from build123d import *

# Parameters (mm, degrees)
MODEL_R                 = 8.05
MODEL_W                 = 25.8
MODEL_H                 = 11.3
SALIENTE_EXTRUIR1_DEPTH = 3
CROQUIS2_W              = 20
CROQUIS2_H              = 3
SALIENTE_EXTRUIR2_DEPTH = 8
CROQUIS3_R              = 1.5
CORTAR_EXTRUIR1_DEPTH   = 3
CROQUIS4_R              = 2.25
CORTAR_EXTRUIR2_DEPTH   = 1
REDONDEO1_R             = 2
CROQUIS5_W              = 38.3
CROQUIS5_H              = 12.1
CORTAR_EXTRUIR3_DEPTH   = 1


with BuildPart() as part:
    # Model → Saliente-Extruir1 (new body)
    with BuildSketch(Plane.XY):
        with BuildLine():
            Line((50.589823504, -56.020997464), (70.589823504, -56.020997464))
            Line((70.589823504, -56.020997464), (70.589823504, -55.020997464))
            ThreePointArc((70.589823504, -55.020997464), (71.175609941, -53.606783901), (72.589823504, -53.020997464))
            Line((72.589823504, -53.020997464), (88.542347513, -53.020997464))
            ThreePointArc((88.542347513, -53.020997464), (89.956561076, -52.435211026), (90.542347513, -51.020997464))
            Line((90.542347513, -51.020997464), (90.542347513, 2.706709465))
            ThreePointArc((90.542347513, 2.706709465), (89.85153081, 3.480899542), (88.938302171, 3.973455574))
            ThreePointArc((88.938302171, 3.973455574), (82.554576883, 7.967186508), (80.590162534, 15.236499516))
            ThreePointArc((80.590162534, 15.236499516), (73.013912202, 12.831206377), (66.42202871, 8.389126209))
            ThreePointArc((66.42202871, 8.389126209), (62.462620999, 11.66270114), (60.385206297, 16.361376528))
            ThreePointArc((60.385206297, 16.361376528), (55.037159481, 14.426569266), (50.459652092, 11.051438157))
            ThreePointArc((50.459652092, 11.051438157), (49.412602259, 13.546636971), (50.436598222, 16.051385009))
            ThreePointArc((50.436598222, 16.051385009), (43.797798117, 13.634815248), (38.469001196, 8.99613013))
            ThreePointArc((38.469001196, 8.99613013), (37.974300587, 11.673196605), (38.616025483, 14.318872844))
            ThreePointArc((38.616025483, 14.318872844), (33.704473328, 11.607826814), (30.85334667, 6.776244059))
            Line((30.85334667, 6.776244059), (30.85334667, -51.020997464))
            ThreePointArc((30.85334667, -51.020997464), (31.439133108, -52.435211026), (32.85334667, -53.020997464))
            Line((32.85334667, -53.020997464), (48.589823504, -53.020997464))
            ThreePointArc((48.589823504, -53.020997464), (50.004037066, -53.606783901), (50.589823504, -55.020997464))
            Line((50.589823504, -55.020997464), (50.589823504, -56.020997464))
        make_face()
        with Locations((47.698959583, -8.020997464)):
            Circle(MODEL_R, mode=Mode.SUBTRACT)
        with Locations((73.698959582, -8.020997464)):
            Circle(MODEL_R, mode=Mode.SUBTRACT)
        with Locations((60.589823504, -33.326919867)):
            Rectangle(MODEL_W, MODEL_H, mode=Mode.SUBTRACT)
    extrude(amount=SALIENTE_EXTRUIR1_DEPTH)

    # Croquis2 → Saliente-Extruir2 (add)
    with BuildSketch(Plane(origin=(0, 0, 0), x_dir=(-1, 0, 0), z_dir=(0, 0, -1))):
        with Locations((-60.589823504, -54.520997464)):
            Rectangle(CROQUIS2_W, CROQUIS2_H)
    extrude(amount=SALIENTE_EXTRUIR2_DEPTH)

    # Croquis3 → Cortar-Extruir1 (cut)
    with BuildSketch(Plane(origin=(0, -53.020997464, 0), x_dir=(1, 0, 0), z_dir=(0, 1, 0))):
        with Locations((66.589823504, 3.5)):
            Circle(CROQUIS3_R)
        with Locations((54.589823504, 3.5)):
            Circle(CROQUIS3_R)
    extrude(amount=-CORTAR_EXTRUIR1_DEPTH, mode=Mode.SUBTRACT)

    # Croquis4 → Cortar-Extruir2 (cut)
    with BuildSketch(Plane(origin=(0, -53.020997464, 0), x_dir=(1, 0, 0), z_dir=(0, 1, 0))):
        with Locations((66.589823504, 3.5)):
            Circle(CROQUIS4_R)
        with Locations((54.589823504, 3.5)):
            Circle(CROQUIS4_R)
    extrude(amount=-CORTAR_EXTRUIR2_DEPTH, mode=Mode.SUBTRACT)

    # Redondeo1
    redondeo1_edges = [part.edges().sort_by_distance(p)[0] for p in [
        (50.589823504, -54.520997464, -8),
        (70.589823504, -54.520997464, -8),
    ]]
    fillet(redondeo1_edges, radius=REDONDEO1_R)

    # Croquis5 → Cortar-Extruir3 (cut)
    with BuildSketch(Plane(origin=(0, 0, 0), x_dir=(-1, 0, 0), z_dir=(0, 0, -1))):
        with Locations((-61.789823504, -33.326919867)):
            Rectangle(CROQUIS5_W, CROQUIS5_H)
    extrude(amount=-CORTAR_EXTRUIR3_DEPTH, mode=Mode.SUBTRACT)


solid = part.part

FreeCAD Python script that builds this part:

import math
import FreeCAD as App
import Part
import Sketcher

V = App.Vector


def edges_at(feature, points):
    """Names of the edges that pass closest to the given points."""
    edges = feature.Shape.Edges
    near = lambda p: min(range(len(edges)), key=lambda i: edges[i].distToShape(Part.Vertex(*p))[0])
    return sorted({f"Edge{near(p) + 1}" for p in points})


def add_polygon(sketch, points):
    """Adds a closed chain of lines whose ends are joined by coincident constraints."""
    first, n = sketch.GeometryCount, len(points)
    for a, b in zip(points, points[1:] + points[:1]):
        sketch.addGeometry(Part.LineSegment(App.Vector(*a, 0), App.Vector(*b, 0)), False)
    for i in range(n):
        sketch.addConstraint(Sketcher.Constraint("Coincident", first + i, 2, first + (i + 1) % n, 1))

doc = App.newDocument("Part")
body = doc.addObject("PartDesign::Body", "Body")

# Sketch on XY plane
sketch1 = body.newObject("Sketcher::SketchObject", "Sketch")
sketch1.AttachmentSupport = (doc.getObject("XY_Plane"), [""])
sketch1.MapMode = "FlatFace"
sketch1.addGeometry(Part.LineSegment(V(50.6, -56, 0), V(70.6, -56, 0)), False)  # 0
sketch1.addGeometry(Part.LineSegment(V(70.6, -56, 0), V(70.6, -55, 0)), False)  # 1
sketch1.addGeometry(Part.ArcOfCircle(Part.Circle(V(72.6, -55, 0), V(0, 0, 1), 2), math.radians(90), math.radians(180)), False)  # 2
sketch1.addGeometry(Part.LineSegment(V(72.6, -53, 0), V(88.5, -53, 0)), False)  # 3
sketch1.addGeometry(Part.ArcOfCircle(Part.Circle(V(88.5, -51, 0), V(0, 0, 1), 2), math.radians(-90), math.radians(0)), False)  # 4
sketch1.addGeometry(Part.LineSegment(V(90.5, -51, 0), V(90.5, 2.7, 0)), False)  # 5
sketch1.addGeometry(Part.ArcOfCircle(Part.Circle(V(88, 1.1, 0), V(0, 0, 1), 3), math.radians(32), math.radians(72)), False)  # 6
sketch1.addGeometry(Part.ArcOfCircle(Part.Circle(V(90.8, 14.1, 0), V(0, 0, 1), 10.3), math.radians(174), math.radians(259)), False)  # 7
sketch1.addGeometry(Part.ArcOfCircle(Part.Circle(V(85.2, -12.3, 0), V(0, 0, 1), 27.9), math.radians(99), math.radians(132)), False)  # 8
sketch1.addGeometry(Part.ArcOfCircle(Part.Circle(V(71.4, 18.4, 0), V(0, 0, 1), 11.2), math.radians(-169), math.radians(-116)), False)  # 9
sketch1.addGeometry(Part.ArcOfCircle(Part.Circle(V(64.4, -3, 0), V(0, 0, 1), 19.8), math.radians(102), math.radians(135)), False)  # 10
sketch1.addGeometry(Part.ArcOfCircle(Part.Circle(V(52.9, 13.6, 0), V(0, 0, 1), 3.5), math.radians(135), math.radians(225)), False)  # 11
sketch1.addGeometry(Part.ArcOfCircle(Part.Circle(V(53.6, -3, 0), V(0, 0, 1), 19.3), math.radians(99), math.radians(142)), False)  # 12
sketch1.addGeometry(Part.ArcOfCircle(Part.Circle(V(44.5, 11.5, 0), V(0, 0, 1), 6.5), math.radians(154), math.radians(203)), False)  # 13
sketch1.addGeometry(Part.ArcOfCircle(Part.Circle(V(41.1, 4, 0), V(0, 0, 1), 10.6), math.radians(104), math.radians(165)), False)  # 14
sketch1.addGeometry(Part.LineSegment(V(30.9, 6.8, 0), V(30.9, -51, 0)), False)  # 15
sketch1.addGeometry(Part.ArcOfCircle(Part.Circle(V(32.9, -51, 0), V(0, 0, 1), 2), math.radians(-180), math.radians(-90)), False)  # 16
sketch1.addGeometry(Part.LineSegment(V(32.9, -53, 0), V(48.6, -53, 0)), False)  # 17
sketch1.addGeometry(Part.ArcOfCircle(Part.Circle(V(48.6, -55, 0), V(0, 0, 1), 2), math.radians(0), math.radians(90)), False)  # 18
sketch1.addGeometry(Part.LineSegment(V(50.6, -55, 0), V(50.6, -56, 0)), False)  # 19
add_polygon(sketch1, [(73.5, -39), (47.7, -39), (47.7, -27.7), (73.5, -27.7)])  # lines 20-23
sketch1.addGeometry(Part.Circle(V(47.7, -8, 0), V(0, 0, 1), 8.1), False)  # 24
sketch1.addGeometry(Part.Circle(V(73.7, -8, 0), V(0, 0, 1), 8.1), False)  # 25
sketch1.addConstraint([
    Sketcher.Constraint("Coincident", 0, 2, 1, 1),
    Sketcher.Constraint("Tangent", 1, 2, 2, 2),
    Sketcher.Constraint("Tangent", 2, 1, 3, 1),
    Sketcher.Constraint("Tangent", 3, 2, 4, 1),
    Sketcher.Constraint("Tangent", 4, 2, 5, 1),
    Sketcher.Constraint("Coincident", 5, 2, 6, 1),
    Sketcher.Constraint("Coincident", 6, 2, 7, 2),
    Sketcher.Constraint("Coincident", 7, 1, 8, 1),
    Sketcher.Constraint("Coincident", 8, 2, 9, 2),
    Sketcher.Constraint("Coincident", 9, 1, 10, 1),
    Sketcher.Constraint("Coincident", 10, 2, 11, 2),
    Sketcher.Constraint("Coincident", 11, 1, 12, 1),
    Sketcher.Constraint("Coincident", 12, 2, 13, 2),
    Sketcher.Constraint("Coincident", 13, 1, 14, 1),
    Sketcher.Constraint("Coincident", 14, 2, 15, 1),
    Sketcher.Constraint("Tangent", 15, 2, 16, 1),
    Sketcher.Constraint("Tangent", 16, 2, 17, 1),
    Sketcher.Constraint("Tangent", 17, 2, 18, 2),
    Sketcher.Constraint("Tangent", 18, 1, 19, 1),
    Sketcher.Constraint("Coincident", 19, 2, 0, 1),
    Sketcher.Constraint("Horizontal", 0),
    Sketcher.Constraint("Vertical", 1),
    Sketcher.Constraint("Horizontal", 3),
    Sketcher.Constraint("Vertical", 5),
    Sketcher.Constraint("Vertical", 15),
    Sketcher.Constraint("Horizontal", 17),
    Sketcher.Constraint("Vertical", 19),
    Sketcher.Constraint("Horizontal", 20),
    Sketcher.Constraint("Vertical", 21),
    Sketcher.Constraint("Horizontal", 22),
    Sketcher.Constraint("Vertical", 23),
    Sketcher.Constraint("Equal", 2, 4),
    Sketcher.Constraint("Equal", 4, 16),
    Sketcher.Constraint("Equal", 16, 18),
    Sketcher.Constraint("Equal", 24, 25),
    Sketcher.Constraint("Horizontal", 4, 3, 16, 3),
    Sketcher.Constraint("Horizontal", 24, 3, 25, 3),
    Sketcher.Constraint("Horizontal", 14, 3, 6, 2),
    Sketcher.Constraint("Radius", 2, 2.0),
    Sketcher.Constraint("Radius", 6, 3.0),
    Sketcher.Constraint("Diameter", 24, 16.1),
    Sketcher.Constraint("DistanceX", 0, 1, 0, 2, 20.0),
    Sketcher.Constraint("DistanceY", 1, 1, 1, 2, 1.0),
    Sketcher.Constraint("DistanceX", 20, 2, 20, 1, 25.8),
    Sketcher.Constraint("DistanceY", 21, 1, 21, 2, 11.3),
    Sketcher.Constraint("DistanceX", 24, 3, 25, 3, 26.0),
    Sketcher.Constraint("DistanceX", 20, 2, 17, 2, 0.9),
    Sketcher.Constraint("Radius", 9, 11.18034),
    Sketcher.Constraint("Radius", 10, 19.801309),
    Sketcher.Constraint("DistanceX", -1, 1, 12, 2, 38.469001),
    Sketcher.Constraint("Radius", 7, 10.307764),
    Sketcher.Constraint("Radius", 8, 27.930966),
    Sketcher.Constraint("Radius", 11, 3.535534),
    Sketcher.Constraint("Radius", 12, 19.349935),
    Sketcher.Constraint("Radius", 13, 6.519202),
    Sketcher.Constraint("Radius", 14, 10.644704),
    Sketcher.Constraint("DistanceX", 16, 3, 4, 3, 55.689001),
    Sketcher.Constraint("DistanceY", 15, 2, 15, 1, 57.797242),
    Sketcher.Constraint("DistanceY", 8, 3, -1, 1, 12.316798),
    Sketcher.Constraint("DistanceX", -1, 1, 11, 3, 52.948099),
    Sketcher.Constraint("DistanceY", -1, 1, 7, 1, 15.2365),
    Sketcher.Constraint("DistanceX", -1, 1, 11, 1, 50.436598),
    Sketcher.Constraint("DistanceY", 4, 3, 8, 3, 38.704199),
    Sketcher.Constraint("DistanceX", 14, 3, 12, 3, 12.502199),
    Sketcher.Constraint("DistanceY", 8, 3, 25, 3, 4.295801),
    Sketcher.Constraint("DistanceY", 10, 2, 11, 3, 2.5115),
    Sketcher.Constraint("DistanceY", 21, 2, 12, 3, 24.642801),
    Sketcher.Constraint("DistanceX", 3, 1, 3, 2, 15.952524),
    Sketcher.Constraint("DistanceY", 5, 1, 5, 2, 53.727707),
    Sketcher.Constraint("DistanceX", -1, 1, 6, 3, 87.992241),
    Sketcher.Constraint("DistanceX", -1, 1, 8, 3, 85.167791),
    Sketcher.Constraint("DistanceX", -1, 1, 10, 3, 64.377751),
    Sketcher.Constraint("DistanceY", -1, 1, 11, 3, 13.562939),
    Sketcher.Constraint("DistanceX", -1, 1, 12, 3, 53.624631),
    Sketcher.Constraint("DistanceX", -1, 1, 24, 3, 47.69896),
    Sketcher.Constraint("DistanceX", -1, 1, 8, 2, 66.422029),
    Sketcher.Constraint("DistanceY", 4, 3, 6, 3, 52.14753),
    Sketcher.Constraint("DistanceY", 7, 3, 9, 3, 4.30698),
    Sketcher.Constraint("DistanceX", 13, 3, 11, 3, 8.457081),
])
pad1 = body.newObject("PartDesign::Pad", "Pad")
pad1.Profile = sketch1
pad1.Length = 3

# Sketch on XY plane
sketch2 = body.newObject("Sketcher::SketchObject", "Sketch001")
sketch2.AttachmentSupport = (doc.getObject("XY_Plane"), [""])
sketch2.MapMode = "FlatFace"
add_polygon(sketch2, [(70.6, -53), (70.6, -56), (50.6, -56), (50.6, -53)])  # lines 0-3
sketch2.addConstraint([
    Sketcher.Constraint("Vertical", 0),
    Sketcher.Constraint("Horizontal", 1),
    Sketcher.Constraint("Vertical", 2),
    Sketcher.Constraint("Horizontal", 3),
    Sketcher.Constraint("DistanceX", 1, 2, 1, 1, 20.0),
    Sketcher.Constraint("DistanceY", 0, 2, 0, 1, 3.0),
    Sketcher.Constraint("DistanceX", -1, 1, 0, 2, 70.589824),
    Sketcher.Constraint("DistanceY", 0, 2, -1, 1, 56.020997),
])
pad2 = body.newObject("PartDesign::Pad", "Pad001")
pad2.Profile = sketch2
pad2.Length = 8
pad2.Reversed = True

# Sketch on XZ plane
sketch3 = body.newObject("Sketcher::SketchObject", "Sketch002")
sketch3.AttachmentSupport = (doc.getObject("XZ_Plane"), [""])
sketch3.MapMode = "FlatFace"
sketch3.AttachmentOffset = App.Placement(V(0, 0, 53.020997), App.Rotation())
sketch3.addGeometry([
    Part.Circle(V(66.6, -3.5, 0), V(0, 0, 1), 1.5),
    Part.Circle(V(54.6, -3.5, 0), V(0, 0, 1), 1.5),
], False)
sketch3.addConstraint([
    Sketcher.Constraint("Equal", 0, 1),
    Sketcher.Constraint("Horizontal", 0, 3, 1, 3),
    Sketcher.Constraint("Diameter", 0, 3.0),
    Sketcher.Constraint("DistanceX", 1, 3, 0, 3, 12.0),
    Sketcher.Constraint("DistanceY", 0, 3, -1, 1, 3.5),
    Sketcher.Constraint("DistanceX", -1, 1, 0, 3, 66.589824),
])
pocket1 = body.newObject("PartDesign::Pocket", "Pocket")
pocket1.Profile = sketch3
pocket1.Length = 3
pocket1.Reversed = True

# Sketch on XZ plane
sketch4 = body.newObject("Sketcher::SketchObject", "Sketch003")
sketch4.AttachmentSupport = (doc.getObject("XZ_Plane"), [""])
sketch4.MapMode = "FlatFace"
sketch4.AttachmentOffset = App.Placement(V(0, 0, 53.020997), App.Rotation())
sketch4.addGeometry([
    Part.Circle(V(66.6, -3.5, 0), V(0, 0, 1), 2.2),
    Part.Circle(V(54.6, -3.5, 0), V(0, 0, 1), 2.2),
], False)
sketch4.addConstraint([
    Sketcher.Constraint("Equal", 0, 1),
    Sketcher.Constraint("Horizontal", 0, 3, 1, 3),
    Sketcher.Constraint("Diameter", 0, 4.5),
    Sketcher.Constraint("DistanceX", 1, 3, 0, 3, 12.0),
    Sketcher.Constraint("DistanceY", 0, 3, -1, 1, 3.5),
    Sketcher.Constraint("DistanceX", -1, 1, 0, 3, 66.589824),
])
pocket2 = body.newObject("PartDesign::Pocket", "Pocket001")
pocket2.Profile = sketch4
pocket2.Length = 1
pocket2.Reversed = True
doc.recompute()

fillet = body.newObject("PartDesign::Fillet", "Fillet")
fillet.Base = (pocket2, edges_at(pocket2, [(50.59, -54.521, -8), (70.59, -54.521, -8)]))
fillet.Radius = 2

# Sketch on XY plane
sketch5 = body.newObject("Sketcher::SketchObject", "Sketch004")
sketch5.AttachmentSupport = (doc.getObject("XY_Plane"), [""])
sketch5.MapMode = "FlatFace"
add_polygon(sketch5, [(81, -27), (81, -39), (43, -39), (43, -27)])  # lines 0-3
sketch5.addConstraint([
    Sketcher.Constraint("Vertical", 0),
    Sketcher.Constraint("Horizontal", 1),
    Sketcher.Constraint("Vertical", 2),
    Sketcher.Constraint("Horizontal", 3),
    Sketcher.Constraint("DistanceX", 1, 2, 1, 1, 38.3),
    Sketcher.Constraint("DistanceY", 0, 2, 0, 1, 12.1),
    Sketcher.Constraint("DistanceY", 0, 2, -1, 1, 39.37692),
    Sketcher.Constraint("DistanceX", -1, 1, 0, 2, 80.939824),
])
pocket3 = body.newObject("PartDesign::Pocket", "Pocket002")
pocket3.Profile = sketch5
pocket3.Length = 1
pocket3.Reversed = True

doc.recompute()
